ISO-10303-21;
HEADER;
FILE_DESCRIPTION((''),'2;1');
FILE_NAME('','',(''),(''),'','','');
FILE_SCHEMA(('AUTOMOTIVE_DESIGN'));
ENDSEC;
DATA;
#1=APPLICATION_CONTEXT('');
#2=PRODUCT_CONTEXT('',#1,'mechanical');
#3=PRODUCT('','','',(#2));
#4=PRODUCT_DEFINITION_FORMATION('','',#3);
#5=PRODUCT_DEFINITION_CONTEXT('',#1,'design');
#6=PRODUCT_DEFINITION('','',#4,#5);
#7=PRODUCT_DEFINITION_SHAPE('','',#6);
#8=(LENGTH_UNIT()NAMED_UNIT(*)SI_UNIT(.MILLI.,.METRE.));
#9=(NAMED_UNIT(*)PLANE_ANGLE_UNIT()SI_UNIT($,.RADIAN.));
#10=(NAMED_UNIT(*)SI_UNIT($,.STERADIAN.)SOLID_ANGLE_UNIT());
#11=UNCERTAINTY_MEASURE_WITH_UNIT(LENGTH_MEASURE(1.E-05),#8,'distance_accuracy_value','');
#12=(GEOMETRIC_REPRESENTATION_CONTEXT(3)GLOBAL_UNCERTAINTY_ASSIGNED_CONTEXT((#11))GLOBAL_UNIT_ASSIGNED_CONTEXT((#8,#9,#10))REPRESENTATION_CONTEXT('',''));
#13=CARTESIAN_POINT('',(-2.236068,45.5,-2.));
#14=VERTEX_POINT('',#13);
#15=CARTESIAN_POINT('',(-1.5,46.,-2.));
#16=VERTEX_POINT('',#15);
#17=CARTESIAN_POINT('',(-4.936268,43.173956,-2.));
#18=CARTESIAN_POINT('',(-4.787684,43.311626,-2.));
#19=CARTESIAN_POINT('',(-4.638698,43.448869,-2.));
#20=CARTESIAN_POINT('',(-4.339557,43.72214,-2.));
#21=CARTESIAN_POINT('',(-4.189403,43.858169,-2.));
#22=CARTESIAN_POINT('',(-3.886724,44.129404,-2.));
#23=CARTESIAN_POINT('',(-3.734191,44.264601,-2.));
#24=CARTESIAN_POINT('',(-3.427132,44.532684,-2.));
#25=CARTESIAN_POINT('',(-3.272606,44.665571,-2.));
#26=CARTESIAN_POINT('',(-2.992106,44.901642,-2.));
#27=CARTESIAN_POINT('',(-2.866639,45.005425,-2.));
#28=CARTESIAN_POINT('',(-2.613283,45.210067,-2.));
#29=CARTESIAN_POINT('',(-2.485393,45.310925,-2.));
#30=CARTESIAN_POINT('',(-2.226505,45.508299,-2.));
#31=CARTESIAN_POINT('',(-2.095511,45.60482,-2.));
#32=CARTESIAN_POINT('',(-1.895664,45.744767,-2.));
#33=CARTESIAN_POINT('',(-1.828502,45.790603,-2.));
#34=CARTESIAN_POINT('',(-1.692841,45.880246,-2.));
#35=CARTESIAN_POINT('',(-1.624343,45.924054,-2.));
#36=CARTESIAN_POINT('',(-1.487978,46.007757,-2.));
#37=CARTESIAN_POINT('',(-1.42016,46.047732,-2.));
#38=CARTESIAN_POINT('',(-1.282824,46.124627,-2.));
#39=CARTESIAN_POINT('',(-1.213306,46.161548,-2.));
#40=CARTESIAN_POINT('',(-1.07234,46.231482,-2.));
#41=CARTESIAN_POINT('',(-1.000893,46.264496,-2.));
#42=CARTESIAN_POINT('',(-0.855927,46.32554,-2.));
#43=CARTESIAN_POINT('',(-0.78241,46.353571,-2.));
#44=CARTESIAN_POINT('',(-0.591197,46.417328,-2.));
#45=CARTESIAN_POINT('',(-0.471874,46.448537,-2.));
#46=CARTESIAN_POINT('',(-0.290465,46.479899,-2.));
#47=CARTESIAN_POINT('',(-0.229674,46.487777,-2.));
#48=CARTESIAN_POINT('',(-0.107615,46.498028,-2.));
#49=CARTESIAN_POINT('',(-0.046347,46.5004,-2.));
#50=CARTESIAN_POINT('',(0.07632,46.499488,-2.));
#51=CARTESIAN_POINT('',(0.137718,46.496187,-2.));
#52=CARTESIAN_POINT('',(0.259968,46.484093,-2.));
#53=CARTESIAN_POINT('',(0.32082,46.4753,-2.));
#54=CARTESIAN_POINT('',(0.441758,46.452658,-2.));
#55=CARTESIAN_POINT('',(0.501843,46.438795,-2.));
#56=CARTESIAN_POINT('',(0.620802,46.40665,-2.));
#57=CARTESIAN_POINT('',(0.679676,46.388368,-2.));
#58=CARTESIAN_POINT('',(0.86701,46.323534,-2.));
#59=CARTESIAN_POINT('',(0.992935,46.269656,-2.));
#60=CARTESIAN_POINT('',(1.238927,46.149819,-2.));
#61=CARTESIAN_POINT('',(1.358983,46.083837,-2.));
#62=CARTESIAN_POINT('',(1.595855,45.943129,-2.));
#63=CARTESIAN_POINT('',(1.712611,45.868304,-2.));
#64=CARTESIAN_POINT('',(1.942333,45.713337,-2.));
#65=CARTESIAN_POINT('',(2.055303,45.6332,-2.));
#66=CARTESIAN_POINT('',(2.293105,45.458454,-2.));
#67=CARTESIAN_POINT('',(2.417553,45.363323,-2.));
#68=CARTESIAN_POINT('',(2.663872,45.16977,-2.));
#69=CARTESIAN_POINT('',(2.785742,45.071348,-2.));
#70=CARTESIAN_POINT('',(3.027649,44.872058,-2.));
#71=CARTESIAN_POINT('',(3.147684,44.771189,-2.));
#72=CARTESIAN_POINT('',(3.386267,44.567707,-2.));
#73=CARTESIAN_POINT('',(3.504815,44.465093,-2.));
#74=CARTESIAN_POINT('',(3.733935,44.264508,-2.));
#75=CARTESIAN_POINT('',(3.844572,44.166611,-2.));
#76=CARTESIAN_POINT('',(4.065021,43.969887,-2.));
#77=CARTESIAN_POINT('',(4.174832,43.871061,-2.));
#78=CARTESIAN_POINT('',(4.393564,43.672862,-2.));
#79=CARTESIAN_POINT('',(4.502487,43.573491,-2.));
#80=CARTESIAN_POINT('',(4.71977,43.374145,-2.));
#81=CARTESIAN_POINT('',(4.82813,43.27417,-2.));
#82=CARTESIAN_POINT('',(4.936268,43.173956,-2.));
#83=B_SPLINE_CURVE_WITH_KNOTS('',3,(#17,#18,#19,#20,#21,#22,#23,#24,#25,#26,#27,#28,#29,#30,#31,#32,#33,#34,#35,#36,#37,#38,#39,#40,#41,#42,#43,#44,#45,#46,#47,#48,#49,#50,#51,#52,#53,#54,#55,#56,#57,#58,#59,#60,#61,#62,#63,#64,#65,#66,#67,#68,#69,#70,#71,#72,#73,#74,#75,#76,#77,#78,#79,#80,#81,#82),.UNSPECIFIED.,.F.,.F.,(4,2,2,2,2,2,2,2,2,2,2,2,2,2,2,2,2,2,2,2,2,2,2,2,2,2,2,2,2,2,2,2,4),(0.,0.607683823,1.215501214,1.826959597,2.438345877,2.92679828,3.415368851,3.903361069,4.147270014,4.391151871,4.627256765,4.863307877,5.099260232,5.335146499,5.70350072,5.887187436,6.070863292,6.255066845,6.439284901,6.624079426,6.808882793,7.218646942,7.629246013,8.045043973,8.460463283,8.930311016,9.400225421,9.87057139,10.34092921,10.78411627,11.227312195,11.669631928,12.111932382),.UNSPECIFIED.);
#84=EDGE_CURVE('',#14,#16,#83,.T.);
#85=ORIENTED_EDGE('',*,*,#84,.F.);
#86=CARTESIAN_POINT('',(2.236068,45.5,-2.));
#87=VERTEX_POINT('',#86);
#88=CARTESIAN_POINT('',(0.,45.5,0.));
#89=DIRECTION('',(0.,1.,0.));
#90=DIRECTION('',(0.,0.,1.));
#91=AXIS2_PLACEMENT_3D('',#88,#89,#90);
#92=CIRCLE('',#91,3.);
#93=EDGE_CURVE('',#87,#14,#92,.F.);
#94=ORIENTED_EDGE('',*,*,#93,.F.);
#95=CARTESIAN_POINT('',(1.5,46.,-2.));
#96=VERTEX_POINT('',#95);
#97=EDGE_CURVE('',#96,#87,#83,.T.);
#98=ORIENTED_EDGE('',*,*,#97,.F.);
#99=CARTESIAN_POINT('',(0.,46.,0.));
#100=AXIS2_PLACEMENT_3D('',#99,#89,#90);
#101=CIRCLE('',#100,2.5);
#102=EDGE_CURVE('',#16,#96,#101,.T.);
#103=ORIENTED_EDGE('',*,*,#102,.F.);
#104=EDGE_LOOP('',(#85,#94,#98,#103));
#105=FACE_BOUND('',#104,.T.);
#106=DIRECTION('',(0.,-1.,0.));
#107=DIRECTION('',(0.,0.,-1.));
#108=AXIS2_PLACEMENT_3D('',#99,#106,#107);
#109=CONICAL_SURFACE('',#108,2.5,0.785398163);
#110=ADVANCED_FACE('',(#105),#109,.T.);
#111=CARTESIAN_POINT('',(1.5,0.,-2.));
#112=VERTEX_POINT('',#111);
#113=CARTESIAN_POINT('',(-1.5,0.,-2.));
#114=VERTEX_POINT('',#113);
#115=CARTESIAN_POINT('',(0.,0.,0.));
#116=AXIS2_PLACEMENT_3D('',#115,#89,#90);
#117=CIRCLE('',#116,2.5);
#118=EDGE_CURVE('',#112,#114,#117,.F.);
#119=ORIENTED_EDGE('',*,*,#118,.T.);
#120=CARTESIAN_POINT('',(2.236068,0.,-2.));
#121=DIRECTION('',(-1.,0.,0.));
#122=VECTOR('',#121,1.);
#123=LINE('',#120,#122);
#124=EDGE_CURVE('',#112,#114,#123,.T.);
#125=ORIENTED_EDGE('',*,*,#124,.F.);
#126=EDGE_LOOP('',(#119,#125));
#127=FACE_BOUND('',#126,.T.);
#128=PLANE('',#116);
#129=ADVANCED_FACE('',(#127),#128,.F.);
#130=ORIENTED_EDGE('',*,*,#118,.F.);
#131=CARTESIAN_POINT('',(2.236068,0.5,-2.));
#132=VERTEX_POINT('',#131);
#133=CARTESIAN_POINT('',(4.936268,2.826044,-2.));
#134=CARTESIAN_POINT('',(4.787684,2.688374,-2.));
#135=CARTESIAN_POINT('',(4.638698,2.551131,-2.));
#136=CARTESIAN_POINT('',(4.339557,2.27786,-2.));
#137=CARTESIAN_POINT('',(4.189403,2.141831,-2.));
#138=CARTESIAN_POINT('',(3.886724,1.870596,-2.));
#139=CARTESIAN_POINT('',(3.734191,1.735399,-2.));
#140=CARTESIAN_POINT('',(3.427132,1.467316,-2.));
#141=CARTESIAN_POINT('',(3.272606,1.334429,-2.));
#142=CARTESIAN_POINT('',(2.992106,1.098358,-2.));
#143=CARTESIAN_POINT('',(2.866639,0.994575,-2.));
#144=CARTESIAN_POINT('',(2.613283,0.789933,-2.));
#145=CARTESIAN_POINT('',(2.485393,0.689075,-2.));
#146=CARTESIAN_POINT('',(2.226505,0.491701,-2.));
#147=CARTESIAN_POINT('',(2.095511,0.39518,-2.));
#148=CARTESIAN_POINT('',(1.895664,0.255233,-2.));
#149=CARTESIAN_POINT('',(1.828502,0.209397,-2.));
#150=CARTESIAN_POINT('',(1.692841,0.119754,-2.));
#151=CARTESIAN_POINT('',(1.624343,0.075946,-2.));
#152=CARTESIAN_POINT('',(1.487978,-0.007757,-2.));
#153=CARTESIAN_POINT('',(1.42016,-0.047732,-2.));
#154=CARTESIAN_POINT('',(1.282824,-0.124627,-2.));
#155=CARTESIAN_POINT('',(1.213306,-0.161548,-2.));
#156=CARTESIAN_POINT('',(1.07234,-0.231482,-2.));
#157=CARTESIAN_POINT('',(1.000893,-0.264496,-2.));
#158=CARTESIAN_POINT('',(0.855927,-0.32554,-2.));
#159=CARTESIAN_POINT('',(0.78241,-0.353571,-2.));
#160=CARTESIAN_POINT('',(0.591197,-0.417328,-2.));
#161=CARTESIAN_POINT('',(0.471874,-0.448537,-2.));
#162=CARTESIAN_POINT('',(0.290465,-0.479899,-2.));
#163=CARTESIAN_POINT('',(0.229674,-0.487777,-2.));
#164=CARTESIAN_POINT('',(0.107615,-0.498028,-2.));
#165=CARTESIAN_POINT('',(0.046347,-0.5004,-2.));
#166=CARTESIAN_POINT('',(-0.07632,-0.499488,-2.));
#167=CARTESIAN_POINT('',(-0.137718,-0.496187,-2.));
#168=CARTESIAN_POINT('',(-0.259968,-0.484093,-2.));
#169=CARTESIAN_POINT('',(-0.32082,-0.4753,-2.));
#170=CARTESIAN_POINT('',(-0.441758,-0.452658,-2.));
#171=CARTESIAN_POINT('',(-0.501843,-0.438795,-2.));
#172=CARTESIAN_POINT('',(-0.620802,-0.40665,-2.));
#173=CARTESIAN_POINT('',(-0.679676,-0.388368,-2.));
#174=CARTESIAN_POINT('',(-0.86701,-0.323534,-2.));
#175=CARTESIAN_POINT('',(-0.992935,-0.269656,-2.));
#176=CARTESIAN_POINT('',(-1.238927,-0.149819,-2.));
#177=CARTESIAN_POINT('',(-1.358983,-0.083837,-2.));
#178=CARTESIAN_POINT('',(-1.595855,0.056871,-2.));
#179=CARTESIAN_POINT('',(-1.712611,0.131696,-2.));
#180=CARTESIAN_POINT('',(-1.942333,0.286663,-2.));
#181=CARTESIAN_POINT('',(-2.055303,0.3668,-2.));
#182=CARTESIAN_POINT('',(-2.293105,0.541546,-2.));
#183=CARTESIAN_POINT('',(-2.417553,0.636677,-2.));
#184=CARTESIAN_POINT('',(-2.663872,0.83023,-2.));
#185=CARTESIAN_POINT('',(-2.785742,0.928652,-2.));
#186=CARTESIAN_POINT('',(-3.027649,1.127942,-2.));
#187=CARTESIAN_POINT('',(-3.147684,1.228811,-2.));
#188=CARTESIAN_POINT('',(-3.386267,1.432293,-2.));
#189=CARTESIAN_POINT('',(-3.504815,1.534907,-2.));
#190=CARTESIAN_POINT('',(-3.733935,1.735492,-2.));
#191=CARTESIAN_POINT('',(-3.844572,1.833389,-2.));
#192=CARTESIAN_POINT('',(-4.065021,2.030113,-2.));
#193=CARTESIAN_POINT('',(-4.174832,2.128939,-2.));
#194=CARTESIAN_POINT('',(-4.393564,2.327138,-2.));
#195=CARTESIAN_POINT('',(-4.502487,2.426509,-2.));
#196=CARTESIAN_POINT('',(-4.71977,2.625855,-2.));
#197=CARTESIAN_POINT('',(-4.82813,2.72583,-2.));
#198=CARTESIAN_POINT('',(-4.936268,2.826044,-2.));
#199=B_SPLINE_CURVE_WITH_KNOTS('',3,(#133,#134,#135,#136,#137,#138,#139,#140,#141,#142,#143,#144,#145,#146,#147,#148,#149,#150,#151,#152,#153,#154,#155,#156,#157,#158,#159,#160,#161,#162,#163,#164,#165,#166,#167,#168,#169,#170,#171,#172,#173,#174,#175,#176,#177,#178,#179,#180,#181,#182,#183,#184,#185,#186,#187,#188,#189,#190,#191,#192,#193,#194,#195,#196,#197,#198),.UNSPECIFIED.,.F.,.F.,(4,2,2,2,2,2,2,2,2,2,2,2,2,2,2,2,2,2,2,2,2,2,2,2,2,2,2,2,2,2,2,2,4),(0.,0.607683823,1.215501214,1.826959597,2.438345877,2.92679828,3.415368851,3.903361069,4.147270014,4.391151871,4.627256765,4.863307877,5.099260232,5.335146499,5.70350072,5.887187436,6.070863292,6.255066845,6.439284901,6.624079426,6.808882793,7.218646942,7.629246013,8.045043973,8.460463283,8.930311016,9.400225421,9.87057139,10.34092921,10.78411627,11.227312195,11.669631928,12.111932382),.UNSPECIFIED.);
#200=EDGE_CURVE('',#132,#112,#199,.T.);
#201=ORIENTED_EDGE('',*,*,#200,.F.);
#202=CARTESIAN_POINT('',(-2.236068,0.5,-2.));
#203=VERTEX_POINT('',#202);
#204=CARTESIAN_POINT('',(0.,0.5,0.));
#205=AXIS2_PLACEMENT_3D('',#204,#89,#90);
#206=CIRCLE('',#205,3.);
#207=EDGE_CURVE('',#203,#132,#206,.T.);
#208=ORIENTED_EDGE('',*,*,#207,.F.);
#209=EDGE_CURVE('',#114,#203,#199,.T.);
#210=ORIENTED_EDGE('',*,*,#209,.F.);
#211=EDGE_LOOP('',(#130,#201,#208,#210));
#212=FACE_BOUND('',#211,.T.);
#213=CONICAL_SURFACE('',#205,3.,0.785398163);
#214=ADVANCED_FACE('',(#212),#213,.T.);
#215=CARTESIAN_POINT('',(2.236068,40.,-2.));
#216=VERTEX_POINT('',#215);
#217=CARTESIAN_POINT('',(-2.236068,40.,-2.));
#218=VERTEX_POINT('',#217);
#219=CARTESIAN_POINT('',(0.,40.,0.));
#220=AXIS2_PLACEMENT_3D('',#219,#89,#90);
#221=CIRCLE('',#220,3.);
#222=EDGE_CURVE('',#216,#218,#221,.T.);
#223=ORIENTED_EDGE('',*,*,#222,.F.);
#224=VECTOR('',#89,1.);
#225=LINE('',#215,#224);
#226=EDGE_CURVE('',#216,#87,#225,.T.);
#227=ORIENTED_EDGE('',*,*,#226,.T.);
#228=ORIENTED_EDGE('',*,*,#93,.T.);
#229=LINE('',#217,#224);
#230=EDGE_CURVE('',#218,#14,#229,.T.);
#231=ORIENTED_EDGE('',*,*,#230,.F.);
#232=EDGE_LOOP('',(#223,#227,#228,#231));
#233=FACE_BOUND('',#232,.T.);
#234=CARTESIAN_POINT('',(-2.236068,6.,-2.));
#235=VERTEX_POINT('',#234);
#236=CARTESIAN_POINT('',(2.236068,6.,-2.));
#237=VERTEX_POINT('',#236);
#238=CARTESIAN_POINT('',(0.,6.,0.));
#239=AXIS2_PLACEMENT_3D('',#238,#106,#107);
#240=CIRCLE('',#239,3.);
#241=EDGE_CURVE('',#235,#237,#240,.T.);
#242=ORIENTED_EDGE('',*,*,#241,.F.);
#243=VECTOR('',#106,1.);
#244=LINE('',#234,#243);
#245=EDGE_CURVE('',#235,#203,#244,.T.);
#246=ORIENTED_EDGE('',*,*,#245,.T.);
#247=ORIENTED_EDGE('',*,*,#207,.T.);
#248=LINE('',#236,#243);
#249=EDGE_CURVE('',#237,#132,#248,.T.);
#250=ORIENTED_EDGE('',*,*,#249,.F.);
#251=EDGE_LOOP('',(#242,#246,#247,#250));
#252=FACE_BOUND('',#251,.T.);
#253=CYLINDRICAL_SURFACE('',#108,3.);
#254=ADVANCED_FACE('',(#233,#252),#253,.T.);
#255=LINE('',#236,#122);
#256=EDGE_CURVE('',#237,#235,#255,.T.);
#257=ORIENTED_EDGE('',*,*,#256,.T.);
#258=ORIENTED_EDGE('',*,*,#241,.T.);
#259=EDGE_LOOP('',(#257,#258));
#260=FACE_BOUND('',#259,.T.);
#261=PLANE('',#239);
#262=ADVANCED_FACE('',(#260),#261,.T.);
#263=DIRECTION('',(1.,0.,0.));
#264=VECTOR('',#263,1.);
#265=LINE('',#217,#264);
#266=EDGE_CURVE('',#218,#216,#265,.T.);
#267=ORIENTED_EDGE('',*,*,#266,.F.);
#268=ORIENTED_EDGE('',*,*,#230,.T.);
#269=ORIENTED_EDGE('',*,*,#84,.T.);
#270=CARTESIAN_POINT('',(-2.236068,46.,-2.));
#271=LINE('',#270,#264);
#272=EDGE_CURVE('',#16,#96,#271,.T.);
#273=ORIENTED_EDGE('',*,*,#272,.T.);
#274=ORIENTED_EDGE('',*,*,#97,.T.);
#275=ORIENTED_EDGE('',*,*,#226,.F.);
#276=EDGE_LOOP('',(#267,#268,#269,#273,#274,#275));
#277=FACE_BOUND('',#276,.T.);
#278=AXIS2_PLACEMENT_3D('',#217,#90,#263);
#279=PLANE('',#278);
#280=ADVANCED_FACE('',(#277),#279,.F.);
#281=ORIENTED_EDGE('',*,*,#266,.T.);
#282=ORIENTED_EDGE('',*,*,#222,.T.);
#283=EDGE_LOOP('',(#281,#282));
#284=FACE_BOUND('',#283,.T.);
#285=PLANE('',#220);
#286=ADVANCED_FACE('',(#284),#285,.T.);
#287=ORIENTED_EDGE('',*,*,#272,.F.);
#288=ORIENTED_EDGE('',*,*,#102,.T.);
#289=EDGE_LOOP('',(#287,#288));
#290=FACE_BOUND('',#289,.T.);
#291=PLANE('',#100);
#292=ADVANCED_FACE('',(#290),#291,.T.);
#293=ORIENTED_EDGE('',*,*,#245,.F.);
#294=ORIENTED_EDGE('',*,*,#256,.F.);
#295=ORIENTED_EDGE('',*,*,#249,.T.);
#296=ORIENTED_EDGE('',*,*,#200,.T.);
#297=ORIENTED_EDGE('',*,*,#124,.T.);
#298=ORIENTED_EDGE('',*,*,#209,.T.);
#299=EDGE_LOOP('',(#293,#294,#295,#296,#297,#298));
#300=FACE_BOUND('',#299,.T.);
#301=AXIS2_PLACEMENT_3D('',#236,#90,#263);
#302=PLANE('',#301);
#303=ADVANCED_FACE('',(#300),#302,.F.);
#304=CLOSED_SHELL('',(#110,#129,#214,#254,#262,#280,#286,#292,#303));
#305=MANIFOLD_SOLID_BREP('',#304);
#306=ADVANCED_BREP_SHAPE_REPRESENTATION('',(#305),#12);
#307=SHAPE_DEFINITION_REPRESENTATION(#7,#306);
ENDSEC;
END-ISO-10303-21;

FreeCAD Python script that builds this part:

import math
import FreeCAD as App
import Part
import Sketcher

V = App.Vector
Q = App.Units.Quantity


def edges_at(feature, points):
    """Names of the edges that pass closest to the given points."""
    edges = feature.Shape.Edges
    near = lambda p: min(range(len(edges)), key=lambda i: edges[i].distToShape(Part.Vertex(*p))[0])
    return sorted({f"Edge{near(p) + 1}" for p in points})

doc = App.newDocument("Part")
params = doc.addObject("Spreadsheet::Sheet", "Params")
for row, (alias, value) in enumerate([
    ("sketch1_diameter", "6 mm"),
    ("pad1_length", "46 mm"),
    ("chamfer_size", "0.5 mm"),
    ("sketch2_radius", "3 mm"),
    ("pocket1_length", "6 mm"),
    ("sketch3_radius", "3 mm"),
    ("pocket2_length", "6 mm"),
], start=1):
    params.set(f"A{row}", alias)
    params.set(f"B{row}", "=" + value)
    params.setAlias(f"B{row}", alias)

body = doc.addObject("PartDesign::Body", "Body")

# Sketch on XZ plane
sketch1 = body.newObject("Sketcher::SketchObject", "Sketch")
sketch1.AttachmentSupport = (doc.getObject("XZ_Plane"), [""])
sketch1.MapMode = "FlatFace"
sketch1.addGeometry(Part.Circle(V(0, 0, 0), V(0, 0, 1), 3), False)
sketch1.addConstraint(Sketcher.Constraint("Coincident", 0, 3, -1, 1))
sketch1.addConstraint(Sketcher.Constraint("Diameter", 0, Q("6 mm")))
sketch1.setExpression("Constraints[1]", "Params.sketch1_diameter")
pad1 = body.newObject("PartDesign::Pad", "Pad")
pad1.Profile = sketch1
pad1.setExpression("Length", "Params.pad1_length")
pad1.Reversed = True
doc.recompute()

chamfer = body.newObject("PartDesign::Chamfer", "Chamfer")
chamfer.Base = (pad1, edges_at(pad1, [(-3, 0, 0), (-3, 46, 0)]))
chamfer.setExpression("Size", "Params.chamfer_size")

# Sketch on XZ plane
sketch2 = body.newObject("Sketcher::SketchObject", "Sketch001")
sketch2.AttachmentSupport = (doc.getObject("XZ_Plane"), [""])
sketch2.MapMode = "FlatFace"
sketch2.AttachmentOffset = App.Placement(V(0, 0, -46), App.Rotation())
sketch2.addGeometry(Part.LineSegment(V(-2.236068, -2, 0), V(2.236068, -2, 0)), False)
sketch2.addGeometry(Part.ArcOfCircle(Part.Circle(V(0, 0, 0), V(0, 0, 1), 3), math.radians(-138.189685), math.radians(-41.810315)), False)
sketch2.addConstraint(Sketcher.Constraint("Coincident", 0, 1, 1, 1))
sketch2.addConstraint(Sketcher.Constraint("Coincident", 1, 2, 0, 2))
sketch2.addConstraint(Sketcher.Constraint("Horizontal", 0))
sketch2.addConstraint(Sketcher.Constraint("Coincident", 1, 3, -1, 1))
sketch2.addConstraint(Sketcher.Constraint("Radius", 1, Q("3 mm")))
sketch2.addConstraint(Sketcher.Constraint("DistanceY", 0, 1, -1, 1, Q("2 mm")))
sketch2.setExpression("Constraints[4]", "Params.sketch2_radius")
pocket1 = body.newObject("PartDesign::Pocket", "Pocket")
pocket1.Profile = sketch2
pocket1.setExpression("Length", "Params.pocket1_length")
pocket1.Reversed = True

# Sketch on XZ plane
sketch3 = body.newObject("Sketcher::SketchObject", "Sketch002")
sketch3.AttachmentSupport = (doc.getObject("XZ_Plane"), [""])
sketch3.MapMode = "FlatFace"
sketch3.addGeometry(Part.LineSegment(V(2.236068, -2, 0), V(-2.236068, -2, 0)), False)
sketch3.addGeometry(Part.ArcOfCircle(Part.Circle(V(0, 0, 0), V(0, 0, 1), 3), math.radians(-138.189685), math.radians(-41.810315)), False)
sketch3.addConstraint(Sketcher.Constraint("Coincident", 0, 1, 1, 2))
sketch3.addConstraint(Sketcher.Constraint("Coincident", 1, 1, 0, 2))
sketch3.addConstraint(Sketcher.Constraint("Horizontal", 0))
sketch3.addConstraint(Sketcher.Constraint("Coincident", 1, 3, -1, 1))
sketch3.addConstraint(Sketcher.Constraint("Radius", 1, Q("3 mm")))
sketch3.addConstraint(Sketcher.Constraint("DistanceY", 0, 1, -1, 1, Q("2 mm")))
sketch3.setExpression("Constraints[4]", "Params.sketch3_radius")
pocket2 = body.newObject("PartDesign::Pocket", "Pocket001")
pocket2.Profile = sketch3
pocket2.setExpression("Length", "Params.pocket2_length")

doc.recompute()
